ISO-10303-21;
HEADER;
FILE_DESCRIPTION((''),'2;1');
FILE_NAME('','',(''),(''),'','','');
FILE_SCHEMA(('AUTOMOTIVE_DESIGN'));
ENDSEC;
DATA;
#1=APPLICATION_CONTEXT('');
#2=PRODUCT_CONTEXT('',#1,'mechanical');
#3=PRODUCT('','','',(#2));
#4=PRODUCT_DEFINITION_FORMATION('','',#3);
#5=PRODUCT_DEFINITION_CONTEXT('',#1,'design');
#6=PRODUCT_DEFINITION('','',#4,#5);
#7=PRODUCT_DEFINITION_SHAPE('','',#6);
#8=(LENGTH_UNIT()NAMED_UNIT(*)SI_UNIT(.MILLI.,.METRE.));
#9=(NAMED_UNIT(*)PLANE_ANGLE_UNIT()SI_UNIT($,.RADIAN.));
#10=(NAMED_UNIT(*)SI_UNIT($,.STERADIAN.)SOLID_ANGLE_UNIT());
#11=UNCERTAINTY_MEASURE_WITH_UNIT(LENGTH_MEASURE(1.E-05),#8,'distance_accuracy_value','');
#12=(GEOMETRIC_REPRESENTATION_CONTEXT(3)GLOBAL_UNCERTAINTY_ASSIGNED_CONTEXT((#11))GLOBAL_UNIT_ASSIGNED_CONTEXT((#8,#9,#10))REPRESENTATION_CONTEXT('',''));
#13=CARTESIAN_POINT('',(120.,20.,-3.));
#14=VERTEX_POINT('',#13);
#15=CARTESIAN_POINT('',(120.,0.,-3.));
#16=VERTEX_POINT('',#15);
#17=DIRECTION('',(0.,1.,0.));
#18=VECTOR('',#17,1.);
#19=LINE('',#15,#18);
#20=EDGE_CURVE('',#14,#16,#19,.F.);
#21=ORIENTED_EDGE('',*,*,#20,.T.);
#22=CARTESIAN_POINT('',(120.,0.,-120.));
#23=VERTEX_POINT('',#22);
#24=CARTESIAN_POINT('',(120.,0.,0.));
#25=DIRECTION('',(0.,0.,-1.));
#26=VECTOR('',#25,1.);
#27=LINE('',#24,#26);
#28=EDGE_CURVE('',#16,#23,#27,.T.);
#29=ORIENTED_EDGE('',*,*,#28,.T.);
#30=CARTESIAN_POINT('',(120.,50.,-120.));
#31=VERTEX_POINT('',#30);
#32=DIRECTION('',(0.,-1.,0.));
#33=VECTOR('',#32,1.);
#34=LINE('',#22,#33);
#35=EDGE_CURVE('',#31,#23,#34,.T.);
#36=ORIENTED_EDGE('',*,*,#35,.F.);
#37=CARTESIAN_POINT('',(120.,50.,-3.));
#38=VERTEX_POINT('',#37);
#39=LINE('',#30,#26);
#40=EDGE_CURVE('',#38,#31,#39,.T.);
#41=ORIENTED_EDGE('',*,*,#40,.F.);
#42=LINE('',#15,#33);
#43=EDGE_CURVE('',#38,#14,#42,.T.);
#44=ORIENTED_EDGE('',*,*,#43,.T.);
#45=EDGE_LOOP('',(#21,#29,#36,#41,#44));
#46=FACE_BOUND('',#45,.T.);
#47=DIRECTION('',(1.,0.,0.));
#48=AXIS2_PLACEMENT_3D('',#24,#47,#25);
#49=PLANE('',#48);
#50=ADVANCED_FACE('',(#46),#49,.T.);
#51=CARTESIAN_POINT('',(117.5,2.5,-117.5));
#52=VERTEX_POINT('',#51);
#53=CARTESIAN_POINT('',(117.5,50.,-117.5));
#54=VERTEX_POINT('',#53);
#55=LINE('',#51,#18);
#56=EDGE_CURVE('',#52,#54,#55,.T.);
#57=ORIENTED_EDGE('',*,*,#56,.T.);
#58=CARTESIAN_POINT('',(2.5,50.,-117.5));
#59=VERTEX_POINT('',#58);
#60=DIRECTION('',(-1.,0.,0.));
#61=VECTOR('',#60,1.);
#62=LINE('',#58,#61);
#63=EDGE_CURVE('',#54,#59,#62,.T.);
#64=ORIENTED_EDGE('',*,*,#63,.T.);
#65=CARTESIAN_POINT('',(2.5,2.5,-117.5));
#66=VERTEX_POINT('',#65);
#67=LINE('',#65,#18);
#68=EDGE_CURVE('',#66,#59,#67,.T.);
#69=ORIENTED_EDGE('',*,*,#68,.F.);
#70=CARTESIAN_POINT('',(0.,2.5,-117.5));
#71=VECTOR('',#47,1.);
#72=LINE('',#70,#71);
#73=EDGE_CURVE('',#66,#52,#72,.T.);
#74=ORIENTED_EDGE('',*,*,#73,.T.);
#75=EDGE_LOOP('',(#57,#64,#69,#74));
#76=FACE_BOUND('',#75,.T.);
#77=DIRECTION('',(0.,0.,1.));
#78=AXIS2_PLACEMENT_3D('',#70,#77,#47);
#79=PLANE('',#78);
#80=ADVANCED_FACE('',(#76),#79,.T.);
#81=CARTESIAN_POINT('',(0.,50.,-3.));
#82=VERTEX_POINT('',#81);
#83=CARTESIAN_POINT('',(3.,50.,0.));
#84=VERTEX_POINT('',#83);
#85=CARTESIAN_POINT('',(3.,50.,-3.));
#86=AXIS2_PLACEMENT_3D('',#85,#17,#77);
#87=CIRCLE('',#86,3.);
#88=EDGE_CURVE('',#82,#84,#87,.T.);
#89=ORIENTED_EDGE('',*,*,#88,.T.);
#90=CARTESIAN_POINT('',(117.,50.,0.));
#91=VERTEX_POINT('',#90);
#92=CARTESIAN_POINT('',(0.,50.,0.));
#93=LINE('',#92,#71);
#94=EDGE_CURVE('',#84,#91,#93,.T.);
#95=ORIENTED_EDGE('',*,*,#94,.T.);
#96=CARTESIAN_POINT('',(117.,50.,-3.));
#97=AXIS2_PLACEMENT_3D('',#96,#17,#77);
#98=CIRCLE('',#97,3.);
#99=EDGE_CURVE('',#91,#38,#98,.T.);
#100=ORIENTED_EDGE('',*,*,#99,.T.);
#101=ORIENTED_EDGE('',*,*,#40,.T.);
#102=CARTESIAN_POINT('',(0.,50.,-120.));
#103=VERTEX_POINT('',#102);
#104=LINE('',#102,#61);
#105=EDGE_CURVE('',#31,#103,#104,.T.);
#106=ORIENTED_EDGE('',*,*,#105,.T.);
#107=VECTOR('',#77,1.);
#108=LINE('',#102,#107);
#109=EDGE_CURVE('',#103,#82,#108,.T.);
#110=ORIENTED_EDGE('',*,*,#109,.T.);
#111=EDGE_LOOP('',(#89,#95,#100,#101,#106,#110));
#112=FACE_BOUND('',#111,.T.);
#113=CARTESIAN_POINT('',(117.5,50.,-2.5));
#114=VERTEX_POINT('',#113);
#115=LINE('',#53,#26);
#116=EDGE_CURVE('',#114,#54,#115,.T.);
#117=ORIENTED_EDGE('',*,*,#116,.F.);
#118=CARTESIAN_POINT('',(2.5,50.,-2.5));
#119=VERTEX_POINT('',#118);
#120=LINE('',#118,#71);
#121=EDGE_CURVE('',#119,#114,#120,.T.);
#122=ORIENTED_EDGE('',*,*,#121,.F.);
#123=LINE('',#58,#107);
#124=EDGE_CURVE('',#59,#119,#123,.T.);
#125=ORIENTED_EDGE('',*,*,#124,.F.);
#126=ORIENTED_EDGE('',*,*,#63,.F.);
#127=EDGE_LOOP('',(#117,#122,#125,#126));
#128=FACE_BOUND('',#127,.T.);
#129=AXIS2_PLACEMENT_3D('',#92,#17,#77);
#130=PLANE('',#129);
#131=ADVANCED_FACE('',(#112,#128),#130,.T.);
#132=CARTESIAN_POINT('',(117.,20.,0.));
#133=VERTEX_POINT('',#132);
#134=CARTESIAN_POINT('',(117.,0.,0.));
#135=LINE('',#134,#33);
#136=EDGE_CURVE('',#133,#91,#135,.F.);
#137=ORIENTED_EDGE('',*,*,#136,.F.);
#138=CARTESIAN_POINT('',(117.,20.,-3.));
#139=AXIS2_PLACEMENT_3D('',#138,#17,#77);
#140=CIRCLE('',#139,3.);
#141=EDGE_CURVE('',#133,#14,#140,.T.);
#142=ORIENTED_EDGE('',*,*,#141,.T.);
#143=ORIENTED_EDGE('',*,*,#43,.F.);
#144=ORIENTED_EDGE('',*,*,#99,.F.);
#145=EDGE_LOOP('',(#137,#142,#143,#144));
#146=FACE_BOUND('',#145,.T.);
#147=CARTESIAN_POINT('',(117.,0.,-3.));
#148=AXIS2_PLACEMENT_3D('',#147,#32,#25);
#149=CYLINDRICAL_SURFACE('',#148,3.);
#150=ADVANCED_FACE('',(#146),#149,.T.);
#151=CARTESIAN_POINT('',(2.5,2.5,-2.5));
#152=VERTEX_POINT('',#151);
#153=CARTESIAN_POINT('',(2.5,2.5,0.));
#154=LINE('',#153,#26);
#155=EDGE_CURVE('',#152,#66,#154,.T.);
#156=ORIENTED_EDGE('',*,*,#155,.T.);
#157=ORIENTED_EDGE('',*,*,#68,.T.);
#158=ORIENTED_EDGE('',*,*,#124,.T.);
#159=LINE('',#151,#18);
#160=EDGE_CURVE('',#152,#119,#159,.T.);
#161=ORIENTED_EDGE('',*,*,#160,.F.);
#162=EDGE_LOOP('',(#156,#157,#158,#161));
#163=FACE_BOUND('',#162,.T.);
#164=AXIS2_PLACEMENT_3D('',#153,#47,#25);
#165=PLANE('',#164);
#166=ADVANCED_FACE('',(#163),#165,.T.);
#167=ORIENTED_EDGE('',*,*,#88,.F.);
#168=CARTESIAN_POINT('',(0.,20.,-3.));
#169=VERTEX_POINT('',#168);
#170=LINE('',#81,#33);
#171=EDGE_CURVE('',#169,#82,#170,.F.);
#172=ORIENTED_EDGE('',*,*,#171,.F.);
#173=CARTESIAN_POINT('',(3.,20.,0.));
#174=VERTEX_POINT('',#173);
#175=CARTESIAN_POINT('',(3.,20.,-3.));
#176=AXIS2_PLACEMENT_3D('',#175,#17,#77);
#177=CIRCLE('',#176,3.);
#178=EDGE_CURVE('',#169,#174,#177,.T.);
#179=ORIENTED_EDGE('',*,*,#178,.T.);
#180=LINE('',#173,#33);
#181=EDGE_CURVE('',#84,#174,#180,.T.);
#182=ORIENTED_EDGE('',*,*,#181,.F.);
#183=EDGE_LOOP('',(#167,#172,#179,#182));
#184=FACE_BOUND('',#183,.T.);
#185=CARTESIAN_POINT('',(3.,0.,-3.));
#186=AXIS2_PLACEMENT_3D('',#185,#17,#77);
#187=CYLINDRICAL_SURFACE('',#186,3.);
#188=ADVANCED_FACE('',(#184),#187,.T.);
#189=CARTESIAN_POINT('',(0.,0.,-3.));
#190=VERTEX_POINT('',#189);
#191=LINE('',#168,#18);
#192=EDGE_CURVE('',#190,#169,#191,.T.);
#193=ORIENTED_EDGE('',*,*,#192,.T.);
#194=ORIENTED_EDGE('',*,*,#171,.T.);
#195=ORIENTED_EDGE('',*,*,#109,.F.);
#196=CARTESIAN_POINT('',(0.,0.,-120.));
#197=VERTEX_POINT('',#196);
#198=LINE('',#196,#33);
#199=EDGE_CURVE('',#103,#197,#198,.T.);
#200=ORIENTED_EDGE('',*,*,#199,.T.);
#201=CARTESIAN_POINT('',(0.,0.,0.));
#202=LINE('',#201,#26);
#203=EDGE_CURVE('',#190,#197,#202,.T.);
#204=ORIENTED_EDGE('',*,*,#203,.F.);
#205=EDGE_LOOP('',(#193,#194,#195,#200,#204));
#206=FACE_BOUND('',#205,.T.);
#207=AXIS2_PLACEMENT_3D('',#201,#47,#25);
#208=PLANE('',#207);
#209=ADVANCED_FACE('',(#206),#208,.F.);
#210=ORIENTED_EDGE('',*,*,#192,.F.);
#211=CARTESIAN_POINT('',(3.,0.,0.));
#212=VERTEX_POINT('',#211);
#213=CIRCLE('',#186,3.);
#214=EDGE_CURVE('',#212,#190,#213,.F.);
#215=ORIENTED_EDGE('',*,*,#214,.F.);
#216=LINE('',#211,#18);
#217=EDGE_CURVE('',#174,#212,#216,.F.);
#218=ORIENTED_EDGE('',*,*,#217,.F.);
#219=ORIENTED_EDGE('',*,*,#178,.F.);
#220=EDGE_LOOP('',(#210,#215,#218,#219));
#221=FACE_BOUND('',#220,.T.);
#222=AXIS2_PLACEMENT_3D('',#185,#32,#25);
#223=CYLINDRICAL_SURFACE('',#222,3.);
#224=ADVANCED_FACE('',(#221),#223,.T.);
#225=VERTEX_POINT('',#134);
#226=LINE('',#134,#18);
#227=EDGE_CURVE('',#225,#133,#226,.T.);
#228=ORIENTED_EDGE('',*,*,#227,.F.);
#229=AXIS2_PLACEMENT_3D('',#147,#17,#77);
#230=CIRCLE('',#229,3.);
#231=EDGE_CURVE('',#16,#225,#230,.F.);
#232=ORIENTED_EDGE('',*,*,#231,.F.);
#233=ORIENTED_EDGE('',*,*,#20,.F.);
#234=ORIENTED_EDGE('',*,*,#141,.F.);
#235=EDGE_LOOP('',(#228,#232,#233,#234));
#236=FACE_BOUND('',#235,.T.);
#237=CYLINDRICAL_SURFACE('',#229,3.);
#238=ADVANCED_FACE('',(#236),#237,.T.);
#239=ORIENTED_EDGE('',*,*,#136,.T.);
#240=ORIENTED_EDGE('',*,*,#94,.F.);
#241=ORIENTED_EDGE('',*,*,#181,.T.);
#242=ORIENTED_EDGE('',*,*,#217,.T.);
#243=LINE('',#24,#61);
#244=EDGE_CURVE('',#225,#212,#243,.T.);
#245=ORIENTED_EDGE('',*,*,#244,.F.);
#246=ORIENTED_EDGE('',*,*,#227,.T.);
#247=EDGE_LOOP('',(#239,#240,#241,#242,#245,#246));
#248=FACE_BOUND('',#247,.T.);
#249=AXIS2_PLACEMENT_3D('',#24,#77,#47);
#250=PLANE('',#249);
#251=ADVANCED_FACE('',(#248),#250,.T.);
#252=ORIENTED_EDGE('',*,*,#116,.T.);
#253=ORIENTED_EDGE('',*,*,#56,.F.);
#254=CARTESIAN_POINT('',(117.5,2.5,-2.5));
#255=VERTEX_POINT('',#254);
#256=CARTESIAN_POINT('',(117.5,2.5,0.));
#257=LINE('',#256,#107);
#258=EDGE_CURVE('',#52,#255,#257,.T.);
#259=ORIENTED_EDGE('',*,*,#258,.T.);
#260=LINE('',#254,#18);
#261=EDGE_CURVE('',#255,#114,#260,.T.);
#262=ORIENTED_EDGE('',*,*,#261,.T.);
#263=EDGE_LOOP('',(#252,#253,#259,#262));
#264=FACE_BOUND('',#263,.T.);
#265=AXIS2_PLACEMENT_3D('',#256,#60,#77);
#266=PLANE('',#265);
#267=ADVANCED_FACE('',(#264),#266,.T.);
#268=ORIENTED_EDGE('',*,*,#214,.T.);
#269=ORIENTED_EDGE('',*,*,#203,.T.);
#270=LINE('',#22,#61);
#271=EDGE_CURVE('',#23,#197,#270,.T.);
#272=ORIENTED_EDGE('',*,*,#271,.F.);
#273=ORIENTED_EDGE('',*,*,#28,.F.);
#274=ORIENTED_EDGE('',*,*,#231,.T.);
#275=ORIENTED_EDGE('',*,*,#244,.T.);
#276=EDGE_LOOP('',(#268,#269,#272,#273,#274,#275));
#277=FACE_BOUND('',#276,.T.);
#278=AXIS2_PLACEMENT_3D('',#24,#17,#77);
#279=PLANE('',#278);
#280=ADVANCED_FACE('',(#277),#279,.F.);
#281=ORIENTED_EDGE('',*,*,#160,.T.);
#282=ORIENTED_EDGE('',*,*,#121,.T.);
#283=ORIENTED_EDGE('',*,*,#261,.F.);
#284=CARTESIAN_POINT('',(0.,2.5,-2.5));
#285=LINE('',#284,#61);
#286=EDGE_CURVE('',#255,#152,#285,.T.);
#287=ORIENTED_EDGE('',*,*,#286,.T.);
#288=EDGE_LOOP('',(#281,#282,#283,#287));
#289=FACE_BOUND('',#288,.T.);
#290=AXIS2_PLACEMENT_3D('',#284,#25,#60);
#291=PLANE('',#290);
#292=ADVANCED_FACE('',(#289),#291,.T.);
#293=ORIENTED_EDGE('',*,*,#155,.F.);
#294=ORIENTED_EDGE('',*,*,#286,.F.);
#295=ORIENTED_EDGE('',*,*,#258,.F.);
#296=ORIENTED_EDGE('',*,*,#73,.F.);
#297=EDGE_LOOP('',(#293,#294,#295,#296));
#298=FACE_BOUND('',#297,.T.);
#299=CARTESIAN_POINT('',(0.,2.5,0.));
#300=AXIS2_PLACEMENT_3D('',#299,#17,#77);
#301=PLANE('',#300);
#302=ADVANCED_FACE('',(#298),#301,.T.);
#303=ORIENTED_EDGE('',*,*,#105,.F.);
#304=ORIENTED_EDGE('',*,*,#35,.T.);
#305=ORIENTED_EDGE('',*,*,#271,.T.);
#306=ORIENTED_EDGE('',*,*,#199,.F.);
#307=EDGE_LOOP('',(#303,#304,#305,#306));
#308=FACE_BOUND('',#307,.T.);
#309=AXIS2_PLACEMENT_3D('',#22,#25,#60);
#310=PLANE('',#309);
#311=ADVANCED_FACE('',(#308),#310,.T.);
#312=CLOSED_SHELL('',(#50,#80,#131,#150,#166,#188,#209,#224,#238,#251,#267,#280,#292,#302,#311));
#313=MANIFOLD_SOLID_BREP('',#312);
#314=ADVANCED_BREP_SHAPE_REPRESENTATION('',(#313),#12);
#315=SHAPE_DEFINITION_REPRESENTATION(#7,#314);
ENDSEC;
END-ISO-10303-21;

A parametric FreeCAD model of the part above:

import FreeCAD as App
import Part
import Sketcher

V = App.Vector
Q = App.Units.Quantity


def edges_at(feature, points):
    """Names of the edges that pass closest to the given points."""
    edges = feature.Shape.Edges
    near = lambda p: min(range(len(edges)), key=lambda i: edges[i].distToShape(Part.Vertex(*p))[0])
    return sorted({f"Edge{near(p) + 1}" for p in points})


def add_polygon(sketch, points):
    """Adds a closed chain of lines whose ends are joined by coincident constraints."""
    first, n = sketch.GeometryCount, len(points)
    for a, b in zip(points, points[1:] + points[:1]):
        sketch.addGeometry(Part.LineSegment(App.Vector(*a, 0), App.Vector(*b, 0)), False)
    for i in range(n):
        sketch.addConstraint(Sketcher.Constraint("Coincident", first + i, 2, first + (i + 1) % n, 1))

doc = App.newDocument("Part")
body = doc.addObject("PartDesign::Body", "Body")

sketch1 = doc.addObject("Sketcher::SketchObject", "Sketch")
body.addObject(sketch1)
sketch1.AttachmentSupport = (doc.YZ_Plane, [""])
sketch1.MapMode = "FlatFace"
add_polygon(sketch1, [(20, 0), (0, 0), (0, -120), (20, -120)])
sketch1.addConstraint([
    Sketcher.Constraint("Horizontal", 0),
    Sketcher.Constraint("Vertical", 1),
    Sketcher.Constraint("Horizontal", 2),
    Sketcher.Constraint("Vertical", 3),
    Sketcher.Constraint("Coincident", 0, 2, -1, 1),
    Sketcher.Constraint("DistanceX", 0, 2, 0, 1, Q("20 mm")),
    Sketcher.Constraint("DistanceY", 1, 2, 1, 1, Q("120 mm")),
])
pad1 = doc.addObject("PartDesign::Pad", "Pad")
body.addObject(pad1)
pad1.Profile = sketch1
pad1.Length = 120
doc.recompute()

fillet = doc.addObject("PartDesign::Fillet", "Fillet")
body.addObject(fillet)
fillet.Base = (pad1, edges_at(pad1, [(120, 10, 0), (0, 10, 0)]))
fillet.Radius = 3

sketch2 = doc.addObject("Sketcher::SketchObject", "Sketch001")
body.addObject(sketch2)
sketch2.AttachmentSupport = (doc.XZ_Plane, [""])
sketch2.MapMode = "FlatFace"
sketch2.AttachmentOffset = App.Placement(V(0, 0, -20), App.Rotation())
add_polygon(sketch2, [(2.5, -117.5), (2.5, -2.5), (117.5, -2.5), (117.5, -117.5)])
sketch2.addConstraint([
    Sketcher.Constraint("Vertical", 0),
    Sketcher.Constraint("Horizontal", 1),
    Sketcher.Constraint("Vertical", 2),
    Sketcher.Constraint("Horizontal", 3),
    Sketcher.Constraint("Equal", 3, 0),
    Sketcher.Constraint("DistanceX", 1, 1, 1, 2, Q("115 mm")),
    Sketcher.Constraint("DistanceX", -1, 1, 0, 2, Q("2.5 mm")),
    Sketcher.Constraint("DistanceY", 0, 2, -1, 1, Q("2.5 mm")),
])
pocket1 = doc.addObject("PartDesign::Pocket", "Pocket")
body.addObject(pocket1)
pocket1.Profile = sketch2
pocket1.Length = 17.5
pocket1.Reversed = True

sketch3 = doc.addObject("Sketcher::SketchObject", "Sketch002")
body.addObject(sketch3)
sketch3.AttachmentSupport = (doc.XZ_Plane, [""])
sketch3.MapMode = "FlatFace"
sketch3.AttachmentOffset = App.Placement(V(0, 0, -20), App.Rotation())
add_polygon(sketch3, [(0, -120), (0, 0), (120, 0), (120, -120)])
add_polygon(sketch3, [(117.5, -2.5), (2.5, -2.5), (2.5, -117.5), (117.5, -117.5)])
sketch3.addConstraint([
    Sketcher.Constraint("Vertical", 0),
    Sketcher.Constraint("Horizontal", 1),
    Sketcher.Constraint("Vertical", 2),
    Sketcher.Constraint("Horizontal", 3),
    Sketcher.Constraint("Horizontal", 4),
    Sketcher.Constraint("Vertical", 5),
    Sketcher.Constraint("Horizontal", 6),
    Sketcher.Constraint("Vertical", 7),
    Sketcher.Constraint("Coincident", 0, 2, -1, 1),
    Sketcher.Constraint("Equal", 3, 0),
    Sketcher.Constraint("Equal", 6, 5),
    Sketcher.Constraint("DistanceX", 1, 1, 1, 2, Q("120 mm")),
    Sketcher.Constraint("DistanceX", 4, 2, 4, 1, Q("115 mm")),
    Sketcher.Constraint("DistanceX", -1, 1, 4, 2, Q("2.5 mm")),
    Sketcher.Constraint("DistanceY", 4, 2, -1, 1, Q("2.5 mm")),
])
pad2 = doc.addObject("PartDesign::Pad", "Pad001")
body.addObject(pad2)
pad2.Profile = sketch3
pad2.Length = 30
pad2.Reversed = True
doc.recompute()

fillet2 = doc.addObject("PartDesign::Fillet", "Fillet001")
body.addObject(fillet2)
fillet2.Base = (pad2, edges_at(pad2, [(120, 35, 0), (0, 35, 0)]))
fillet2.Radius = 3

doc.recompute()
